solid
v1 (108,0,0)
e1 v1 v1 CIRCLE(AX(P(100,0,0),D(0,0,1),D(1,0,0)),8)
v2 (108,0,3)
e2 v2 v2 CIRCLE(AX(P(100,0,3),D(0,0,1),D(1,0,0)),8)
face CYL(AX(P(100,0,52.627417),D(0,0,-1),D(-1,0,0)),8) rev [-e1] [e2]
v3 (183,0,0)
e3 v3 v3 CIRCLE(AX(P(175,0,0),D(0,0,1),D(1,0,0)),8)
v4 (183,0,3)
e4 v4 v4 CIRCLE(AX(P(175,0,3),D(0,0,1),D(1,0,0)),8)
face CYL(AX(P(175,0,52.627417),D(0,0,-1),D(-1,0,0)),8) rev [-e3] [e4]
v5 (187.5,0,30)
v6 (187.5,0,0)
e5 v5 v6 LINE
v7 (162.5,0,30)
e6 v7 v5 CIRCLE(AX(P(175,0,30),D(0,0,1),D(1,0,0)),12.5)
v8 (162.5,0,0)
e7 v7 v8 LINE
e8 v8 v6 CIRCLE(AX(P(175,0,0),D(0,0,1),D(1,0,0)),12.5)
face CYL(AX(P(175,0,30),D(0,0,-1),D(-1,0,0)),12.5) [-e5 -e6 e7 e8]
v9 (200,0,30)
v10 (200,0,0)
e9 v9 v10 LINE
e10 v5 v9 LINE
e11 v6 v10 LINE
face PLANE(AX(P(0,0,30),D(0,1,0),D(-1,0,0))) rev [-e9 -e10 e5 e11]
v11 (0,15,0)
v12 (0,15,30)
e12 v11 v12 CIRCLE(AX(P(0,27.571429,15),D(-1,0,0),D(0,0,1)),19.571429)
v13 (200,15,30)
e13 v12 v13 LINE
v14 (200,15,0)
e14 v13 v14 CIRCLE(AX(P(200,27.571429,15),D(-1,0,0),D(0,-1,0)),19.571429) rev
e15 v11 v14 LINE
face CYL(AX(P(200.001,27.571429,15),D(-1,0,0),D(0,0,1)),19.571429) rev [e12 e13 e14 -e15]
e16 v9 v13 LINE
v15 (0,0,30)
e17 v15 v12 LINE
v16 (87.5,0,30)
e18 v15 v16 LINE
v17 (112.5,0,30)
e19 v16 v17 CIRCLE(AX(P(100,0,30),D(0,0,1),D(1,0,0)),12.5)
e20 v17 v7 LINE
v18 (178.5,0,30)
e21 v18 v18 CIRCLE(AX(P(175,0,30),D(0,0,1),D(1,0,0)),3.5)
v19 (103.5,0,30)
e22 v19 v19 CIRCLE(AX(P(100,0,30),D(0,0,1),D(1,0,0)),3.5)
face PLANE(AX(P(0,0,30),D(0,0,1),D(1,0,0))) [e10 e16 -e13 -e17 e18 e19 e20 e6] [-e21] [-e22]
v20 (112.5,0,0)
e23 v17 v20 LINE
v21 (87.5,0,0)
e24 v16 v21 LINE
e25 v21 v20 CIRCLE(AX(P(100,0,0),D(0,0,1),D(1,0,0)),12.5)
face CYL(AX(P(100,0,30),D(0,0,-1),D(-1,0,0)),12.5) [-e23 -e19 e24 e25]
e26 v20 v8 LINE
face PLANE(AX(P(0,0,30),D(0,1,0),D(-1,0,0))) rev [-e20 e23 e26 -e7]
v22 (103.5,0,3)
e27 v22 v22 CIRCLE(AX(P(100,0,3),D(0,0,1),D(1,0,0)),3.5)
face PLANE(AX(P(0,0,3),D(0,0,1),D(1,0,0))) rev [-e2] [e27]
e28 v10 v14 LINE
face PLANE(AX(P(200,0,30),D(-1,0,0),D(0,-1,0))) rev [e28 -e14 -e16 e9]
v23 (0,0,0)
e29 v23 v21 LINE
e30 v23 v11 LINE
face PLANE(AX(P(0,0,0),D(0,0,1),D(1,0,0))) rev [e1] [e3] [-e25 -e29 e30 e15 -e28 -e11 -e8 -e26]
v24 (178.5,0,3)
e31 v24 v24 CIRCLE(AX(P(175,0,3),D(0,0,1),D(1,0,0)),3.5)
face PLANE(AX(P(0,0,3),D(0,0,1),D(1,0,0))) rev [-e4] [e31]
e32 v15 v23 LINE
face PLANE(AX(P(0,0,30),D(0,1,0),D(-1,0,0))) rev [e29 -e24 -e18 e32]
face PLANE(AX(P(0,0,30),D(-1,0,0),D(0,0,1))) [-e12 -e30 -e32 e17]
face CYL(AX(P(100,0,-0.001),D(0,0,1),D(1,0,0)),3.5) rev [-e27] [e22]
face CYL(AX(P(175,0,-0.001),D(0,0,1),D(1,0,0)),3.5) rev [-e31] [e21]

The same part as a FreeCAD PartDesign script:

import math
import FreeCAD as App
import Part
import Sketcher

doc = App.newDocument("Part")
params = doc.addObject("Spreadsheet::Sheet", "Params")
for row, (alias, value) in enumerate([
    ("sketch1_radius", "12.5 mm"),
    ("sketch1_width", "50 mm"),
    ("sketch1_width2", "200 mm"),
    ("sketch1_height", "15 mm"),
    ("sketch1_width3", "87.5 mm"),
    ("pad1_length", "30 mm"),
    ("sketch2_diameter", "7 mm"),
    ("sketch3_diameter", "7 mm"),
    ("sketch4_diameter", "16 mm"),
    ("sketch4_diameter2", "7 mm"),
    ("pocket3_length", "3 mm"),
    ("sketch5_height", "30 mm"),
], start=1):
    params.set(f"A{row}", alias)
    params.set(f"B{row}", "=" + value)
    params.setAlias(f"B{row}", alias)

body = doc.addObject("PartDesign::Body", "Body")

sketch1 = doc.addObject("Sketcher::SketchObject", "Sketch")
body.addObject(sketch1)
sketch1.AttachmentSupport = (doc.XY_Plane, [""])
sketch1.MapMode = "FlatFace"
sketch1.addGeometry([
    Part.LineSegment(App.Vector(0, 15, 0), App.Vector(0, 0, 0)),
    Part.LineSegment(App.Vector(0, 0, 0), App.Vector(88, 0, 0)),
    Part.ArcOfCircle(Part.Circle(App.Vector(100, 0, 0), App.Vector(0, 0, 1), 12), math.radians(180), math.radians(360)),
    Part.LineSegment(App.Vector(112, 0, 0), App.Vector(162, 0, 0)),
    Part.ArcOfCircle(Part.Circle(App.Vector(175, 0, 0), App.Vector(0, 0, 1), 12), math.radians(180), math.radians(360)),
    Part.LineSegment(App.Vector(188, 0, 0), App.Vector(200, 0, 0)),
    Part.LineSegment(App.Vector(200, 0, 0), App.Vector(200, 15, 0)),
    Part.LineSegment(App.Vector(200, 15, 0), App.Vector(0, 15, 0)),
], False)
sketch1.addConstraint([
    Sketcher.Constraint("Coincident", 0, 2, 1, 1),
    Sketcher.Constraint("Coincident", 1, 2, 2, 1),
    Sketcher.Constraint("Coincident", 2, 2, 3, 1),
    Sketcher.Constraint("Coincident", 3, 2, 4, 1),
    Sketcher.Constraint("Coincident", 4, 2, 5, 1),
    Sketcher.Constraint("Coincident", 5, 2, 6, 1),
    Sketcher.Constraint("Coincident", 6, 2, 7, 1),
    Sketcher.Constraint("Coincident", 7, 2, 0, 1),
    Sketcher.Constraint("Vertical", 0),
    Sketcher.Constraint("Horizontal", 1),
    Sketcher.Constraint("Horizontal", 3),
    Sketcher.Constraint("Horizontal", 5),
    Sketcher.Constraint("Vertical", 6),
    Sketcher.Constraint("Horizontal", 7),
    Sketcher.Constraint("Coincident", 0, 2, -1, 1),
    Sketcher.Constraint("Equal", 2, 4),
    Sketcher.Constraint("PointOnObject", 2, 3, -1),
    Sketcher.Constraint("PointOnObject", 4, 3, -1),
    Sketcher.Constraint("PointOnObject", 2, 2, -1),
    Sketcher.Constraint("PointOnObject", 4, 2, -1),
    Sketcher.Constraint("Radius", 2, 12.5),
    Sketcher.Constraint("DistanceX", 3, 1, 3, 2, 50.0),
    Sketcher.Constraint("DistanceX", 7, 2, 7, 1, 200.0),
    Sketcher.Constraint("DistanceY", 0, 2, 0, 1, 15.0),
    Sketcher.Constraint("DistanceX", 1, 1, 1, 2, 87.5),
])
sketch1.setExpression("Constraints[20]", "Params.sketch1_radius")
sketch1.setExpression("Constraints[21]", "Params.sketch1_width")
sketch1.setExpression("Constraints[22]", "Params.sketch1_width2")
sketch1.setExpression("Constraints[23]", "Params.sketch1_height")
sketch1.setExpression("Constraints[24]", "Params.sketch1_width3")
pad1 = doc.addObject("PartDesign::Pad", "Pad")
body.addObject(pad1)
pad1.Profile = sketch1
pad1.setExpression("Length", "Params.pad1_length")

sketch2 = doc.addObject("Sketcher::SketchObject", "Sketch001")
body.addObject(sketch2)
sketch2.AttachmentSupport = (doc.XY_Plane, [""])
sketch2.MapMode = "FlatFace"
sketch2.AttachmentOffset = App.Placement(App.Vector(0, 0, 30), App.Rotation())
sketch2.addGeometry(Part.Circle(App.Vector(100, 0, 0), App.Vector(0, 0, 1), 3.5), False)
sketch2.addConstraint([
    Sketcher.Constraint("PointOnObject", 0, 3, -1),
    Sketcher.Constraint("Diameter", 0, 7.0),
    Sketcher.Constraint("DistanceX", -1, 1, 0, 3, 100.0),
])
sketch2.setExpression("Constraints[1]", "Params.sketch2_diameter")
pocket1 = doc.addObject("PartDesign::Pocket", "Pocket")
body.addObject(pocket1)
pocket1.Profile = sketch2
pocket1.Type = "UpToFirst"

sketch3 = doc.addObject("Sketcher::SketchObject", "Sketch002")
body.addObject(sketch3)
sketch3.AttachmentSupport = (doc.XY_Plane, [""])
sketch3.MapMode = "FlatFace"
sketch3.AttachmentOffset = App.Placement(App.Vector(0, 0, 30), App.Rotation())
sketch3.addGeometry(Part.Circle(App.Vector(175, 0, 0), App.Vector(0, 0, 1), 3.5), False)
sketch3.addConstraint([
    Sketcher.Constraint("PointOnObject", 0, 3, -1),
    Sketcher.Constraint("Diameter", 0, 7.0),
    Sketcher.Constraint("DistanceX", -1, 1, 0, 3, 175.0),
])
sketch3.setExpression("Constraints[1]", "Params.sketch3_diameter")
pocket2 = doc.addObject("PartDesign::Pocket", "Pocket001")
body.addObject(pocket2)
pocket2.Profile = sketch3
pocket2.Type = "UpToFirst"

sketch4 = doc.addObject("Sketcher::SketchObject", "Sketch003")
body.addObject(sketch4)
sketch4.AttachmentSupport = (doc.XY_Plane, [""])
sketch4.MapMode = "FlatFace"
sketch4.AttachmentOffset = App.Placement(App.Vector(0, 0, 3), App.Rotation())
sketch4.addGeometry([
    Part.Circle(App.Vector(100, 0, 0), App.Vector(0, 0, 1), 8),
    Part.Circle(App.Vector(100, 0, 0), App.Vector(0, 0, 1), 3.5),
    Part.Circle(App.Vector(175, 0, 0), App.Vector(0, 0, 1), 8),
    Part.Circle(App.Vector(175, 0, 0), App.Vector(0, 0, 1), 3.5),
], False)
sketch4.addConstraint([
    Sketcher.Constraint("Coincident", 1, 3, 0, 3),
    Sketcher.Constraint("Coincident", 3, 3, 2, 3),
    Sketcher.Constraint("Equal", 0, 2),
    Sketcher.Constraint("Equal", 1, 3),
    Sketcher.Constraint("PointOnObject", 0, 3, -1),
    Sketcher.Constraint("PointOnObject", 2, 3, -1),
    Sketcher.Constraint("Diameter", 0, 16.0),
    Sketcher.Constraint("Diameter", 1, 7.0),
    Sketcher.Constraint("DistanceX", -1, 1, 0, 3, 100.0),
    Sketcher.Constraint("DistanceX", -1, 1, 2, 3, 175.0),
])
sketch4.setExpression("Constraints[6]", "Params.sketch4_diameter")
sketch4.setExpression("Constraints[7]", "Params.sketch4_diameter2")
pocket3 = doc.addObject("PartDesign::Pocket", "Pocket002")
body.addObject(pocket3)
pocket3.Profile = sketch4
pocket3.setExpression("Length", "Params.pocket3_length")

sketch5 = doc.addObject("Sketcher::SketchObject", "Sketch004")
body.addObject(sketch5)
sketch5.AttachmentSupport = (doc.YZ_Plane, [""])
sketch5.MapMode = "FlatFace"
sketch5.addGeometry([
    Part.LineSegment(App.Vector(15, 30, 0), App.Vector(15, 0, 0)),
    Part.ArcOfCircle(Part.Circle(App.Vector(28, 15, 0), App.Vector(0, 0, 1), 20), math.radians(130), math.radians(230)),
], False)
sketch5.addConstraint([
    Sketcher.Constraint("Coincident", 0, 1, 1, 1),
    Sketcher.Constraint("Coincident", 1, 2, 0, 2),
    Sketcher.Constraint("Vertical", 0),
    Sketcher.Constraint("PointOnObject", 1, 2, -1),
    Sketcher.Constraint("DistanceY", 0, 2, 0, 1, 30.0),
    Sketcher.Constraint("DistanceX", -1, 1, 0, 1, 15.0),
    Sketcher.Constraint("Radius", 1, 19.571429),
])
sketch5.setExpression("Constraints[4]", "Params.sketch5_height")
pocket4 = doc.addObject("PartDesign::Pocket", "Pocket003")
body.addObject(pocket4)
pocket4.Profile = sketch5
pocket4.Type = "UpToFirst"
pocket4.Reversed = True

doc.recompute()
